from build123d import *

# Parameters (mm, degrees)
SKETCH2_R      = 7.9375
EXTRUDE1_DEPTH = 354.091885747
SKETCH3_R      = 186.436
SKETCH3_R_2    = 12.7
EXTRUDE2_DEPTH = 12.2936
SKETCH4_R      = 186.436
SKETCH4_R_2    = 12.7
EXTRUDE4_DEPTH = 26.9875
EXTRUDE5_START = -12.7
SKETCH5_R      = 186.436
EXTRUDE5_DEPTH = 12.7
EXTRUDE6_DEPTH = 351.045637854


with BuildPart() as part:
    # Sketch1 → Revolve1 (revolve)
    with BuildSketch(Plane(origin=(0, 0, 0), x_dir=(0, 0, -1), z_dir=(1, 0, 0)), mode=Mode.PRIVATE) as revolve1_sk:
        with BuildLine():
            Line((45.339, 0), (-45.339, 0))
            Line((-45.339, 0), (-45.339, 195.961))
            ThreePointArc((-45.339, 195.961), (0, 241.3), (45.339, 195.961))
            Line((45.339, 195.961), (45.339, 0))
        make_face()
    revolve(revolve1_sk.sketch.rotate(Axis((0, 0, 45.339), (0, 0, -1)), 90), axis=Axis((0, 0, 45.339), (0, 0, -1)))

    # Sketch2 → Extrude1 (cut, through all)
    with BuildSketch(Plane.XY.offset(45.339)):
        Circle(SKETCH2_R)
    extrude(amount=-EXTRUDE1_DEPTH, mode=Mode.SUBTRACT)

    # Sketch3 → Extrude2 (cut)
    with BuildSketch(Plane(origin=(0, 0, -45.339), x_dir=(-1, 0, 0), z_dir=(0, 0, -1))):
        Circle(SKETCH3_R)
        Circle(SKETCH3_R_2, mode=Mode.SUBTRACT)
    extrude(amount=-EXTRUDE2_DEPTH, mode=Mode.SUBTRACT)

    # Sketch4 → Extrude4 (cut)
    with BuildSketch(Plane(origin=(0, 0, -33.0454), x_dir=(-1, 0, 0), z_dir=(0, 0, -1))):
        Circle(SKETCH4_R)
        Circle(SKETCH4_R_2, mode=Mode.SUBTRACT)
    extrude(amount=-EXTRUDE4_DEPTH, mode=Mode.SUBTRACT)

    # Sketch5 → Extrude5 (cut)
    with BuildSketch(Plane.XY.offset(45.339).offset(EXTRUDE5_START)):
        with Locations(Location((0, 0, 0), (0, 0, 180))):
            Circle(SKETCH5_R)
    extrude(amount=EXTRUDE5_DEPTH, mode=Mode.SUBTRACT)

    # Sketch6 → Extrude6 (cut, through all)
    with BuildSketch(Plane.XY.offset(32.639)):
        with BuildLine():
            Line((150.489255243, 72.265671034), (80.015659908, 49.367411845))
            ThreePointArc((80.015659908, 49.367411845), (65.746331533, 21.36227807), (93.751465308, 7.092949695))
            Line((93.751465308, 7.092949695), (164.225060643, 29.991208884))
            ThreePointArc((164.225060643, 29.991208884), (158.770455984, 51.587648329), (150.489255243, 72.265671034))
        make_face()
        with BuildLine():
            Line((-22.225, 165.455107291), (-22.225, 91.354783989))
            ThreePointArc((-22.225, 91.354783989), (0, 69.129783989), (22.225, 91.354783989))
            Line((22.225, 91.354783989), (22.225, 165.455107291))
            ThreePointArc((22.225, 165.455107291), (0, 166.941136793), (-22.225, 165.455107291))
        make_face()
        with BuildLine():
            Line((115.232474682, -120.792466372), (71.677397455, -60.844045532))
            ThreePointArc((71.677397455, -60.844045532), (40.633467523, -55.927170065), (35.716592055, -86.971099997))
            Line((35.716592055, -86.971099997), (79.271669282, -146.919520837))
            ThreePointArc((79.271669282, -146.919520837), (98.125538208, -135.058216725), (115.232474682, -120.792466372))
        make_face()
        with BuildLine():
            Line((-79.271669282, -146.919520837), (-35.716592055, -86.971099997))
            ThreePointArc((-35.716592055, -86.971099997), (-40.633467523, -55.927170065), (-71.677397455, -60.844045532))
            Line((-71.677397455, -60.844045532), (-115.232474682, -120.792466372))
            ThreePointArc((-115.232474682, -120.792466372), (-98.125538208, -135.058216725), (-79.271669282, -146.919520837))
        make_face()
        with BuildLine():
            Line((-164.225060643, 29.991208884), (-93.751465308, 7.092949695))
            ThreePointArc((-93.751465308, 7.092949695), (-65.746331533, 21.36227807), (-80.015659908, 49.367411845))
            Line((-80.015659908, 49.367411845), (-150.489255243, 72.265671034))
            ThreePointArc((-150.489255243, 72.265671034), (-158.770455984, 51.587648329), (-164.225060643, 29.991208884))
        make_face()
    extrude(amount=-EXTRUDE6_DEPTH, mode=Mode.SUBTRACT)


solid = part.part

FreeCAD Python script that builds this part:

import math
import FreeCAD as App
import Part
import Sketcher

V = App.Vector
Q = App.Units.Quantity

doc = App.newDocument("Part")
body = doc.addObject("PartDesign::Body", "Body")

sketch1 = doc.addObject("Sketcher::SketchObject", "Sketch")
body.addObject(sketch1)
sketch1.AttachmentSupport = (doc.YZ_Plane, [""])
sketch1.MapMode = "FlatFace"
sketch1.addGeometry([
    Part.LineSegment(V(0, 45.339, 0), V(0, -45.339, 0)),
    Part.LineSegment(V(0, -45.339, 0), V(195.961, -45.339, 0)),
    Part.ArcOfCircle(Part.Circle(V(195.961, 0, 0), V(0, 0, 1), 45.339), math.radians(-90), math.radians(90)),
    Part.LineSegment(V(195.961, 45.339, 0), V(0, 45.339, 0)),
], False)
sketch1.addConstraint([
    Sketcher.Constraint("Coincident", 0, 2, 1, 1),
    Sketcher.Constraint("Tangent", 1, 2, 2, 1),
    Sketcher.Constraint("Tangent", 2, 2, 3, 1),
    Sketcher.Constraint("Coincident", 3, 2, 0, 1),
    Sketcher.Constraint("Vertical", 0),
    Sketcher.Constraint("Horizontal", 1),
    Sketcher.Constraint("Horizontal", 3),
    Sketcher.Constraint("Symmetric", 0, 2, 3, 2, -1, 1),
    Sketcher.Constraint("Radius", 2, Q("1.785 in")),
    Sketcher.Constraint("DistanceX", 1, 1, 1, 2, Q("7.715 in")),
])
revolution = doc.addObject("PartDesign::Revolution", "Revolution")
body.addObject(revolution)
revolution.Profile = sketch1
revolution.ReferenceAxis = (sketch1, ["V_Axis"])
revolution.Angle = 360

sketch2 = doc.addObject("Sketcher::SketchObject", "Sketch001")
body.addObject(sketch2)
sketch2.AttachmentSupport = (doc.XY_Plane, [""])
sketch2.MapMode = "FlatFace"
sketch2.AttachmentOffset = App.Placement(V(0, 0, 1.785 * 25.4), App.Rotation())
sketch2.addGeometry(Part.Circle(V(0, 0, 0), V(0, 0, 1), 7.9375), False)
sketch2.addConstraint([
    Sketcher.Constraint("Coincident", 0, 3, -1, 1),
    Sketcher.Constraint("Diameter", 0, Q("0.625 in")),
])
pocket1 = doc.addObject("PartDesign::Pocket", "Pocket")
body.addObject(pocket1)
pocket1.Profile = sketch2
pocket1.Type = "ThroughAll"

sketch3 = doc.addObject("Sketcher::SketchObject", "Sketch002")
body.addObject(sketch3)
sketch3.AttachmentSupport = (doc.XY_Plane, [""])
sketch3.MapMode = "FlatFace"
sketch3.AttachmentOffset = App.Placement(V(0, 0, -1.785 * 25.4), App.Rotation())
sketch3.addGeometry([
    Part.Circle(V(0, 0, 0), V(0, 0, 1), 186.436),
    Part.Circle(V(0, 0, 0), V(0, 0, 1), 12.7),
], False)
sketch3.addConstraint([
    Sketcher.Constraint("Coincident", 0, 3, -1, 1),
    Sketcher.Constraint("Coincident", 1, 3, -1, 1),
    Sketcher.Constraint("Diameter", 1, Q("1 in")),
    Sketcher.Constraint("Diameter", 0, Q("14.68 in")),
])
pocket2 = doc.addObject("PartDesign::Pocket", "Pocket001")
body.addObject(pocket2)
pocket2.Profile = sketch3
pocket2.Length = Q("0.484 in")
pocket2.Reversed = True

sketch4 = doc.addObject("Sketcher::SketchObject", "Sketch003")
body.addObject(sketch4)
sketch4.AttachmentSupport = (doc.XY_Plane, [""])
sketch4.MapMode = "FlatFace"
sketch4.AttachmentOffset = App.Placement(V(0, 0, -1.301 * 25.4), App.Rotation())
sketch4.addGeometry([
    Part.Circle(V(0, 0, 0), V(0, 0, 1), 186.436),
    Part.Circle(V(0, 0, 0), V(0, 0, 1), 12.7),
], False)
sketch4.addConstraint([
    Sketcher.Constraint("Coincident", 0, 3, -1, 1),
    Sketcher.Constraint("Coincident", 1, 3, -1, 1),
    Sketcher.Constraint("Diameter", 1, Q("1 in")),
    Sketcher.Constraint("Diameter", 0, Q("14.68 in")),
])
pocket3 = doc.addObject("PartDesign::Pocket", "Pocket002")
body.addObject(pocket3)
pocket3.Profile = sketch4
pocket3.Length = Q("1.0625 in")
pocket3.Reversed = True

sketch5 = doc.addObject("Sketcher::SketchObject", "Sketch004")
body.addObject(sketch5)
sketch5.AttachmentSupport = (doc.XY_Plane, [""])
sketch5.MapMode = "FlatFace"
sketch5.AttachmentOffset = App.Placement(V(0, 0, 1.285 * 25.4), App.Rotation())
sketch5.addGeometry(Part.Circle(V(0, 0, 0), V(0, 0, 1), 186.436), False)
sketch5.addConstraint([
    Sketcher.Constraint("Coincident", 0, 3, -1, 1),
    Sketcher.Constraint("Diameter", 0, Q("14.68 in")),
])
pocket4 = doc.addObject("PartDesign::Pocket", "Pocket003")
body.addObject(pocket4)
pocket4.Profile = sketch5
pocket4.Length = Q("0.5 in")
pocket4.Reversed = True

sketch6 = doc.addObject("Sketcher::SketchObject", "Sketch005")
body.addObject(sketch6)
sketch6.AttachmentSupport = (doc.XY_Plane, [""])
sketch6.MapMode = "FlatFace"
sketch6.AttachmentOffset = App.Placement(V(0, 0, 1.285 * 25.4), App.Rotation())
sketch6.addGeometry([
    Part.LineSegment(V(150.489255, 72.265671, 0), V(80.01566, 49.367412, 0)),
    Part.ArcOfCircle(Part.Circle(V(86.883563, 28.230181, 0), V(0, 0, 1), 22.225), math.radians(108), math.radians(288)),
    Part.LineSegment(V(93.751465, 7.09295, 0), V(164.225061, 29.991209, 0)),
    Part.ArcOfCircle(Part.Circle(V(0, 0, 0), V(0, 0, 1), 166.941137), math.radians(10.349455), math.radians(25.650545)),
    Part.LineSegment(V(-22.225, 165.455107, 0), V(-22.225, 91.354784, 0)),
    Part.ArcOfCircle(Part.Circle(V(0, 91.354784, 0), V(0, 0, 1), 22.225), math.radians(180), math.radians(360)),
    Part.LineSegment(V(22.225, 91.354784, 0), V(22.225, 165.455107, 0)),
    Part.ArcOfCircle(Part.Circle(V(0, 0, 0), V(0, 0, 1), 166.941137), math.radians(82.349455), math.radians(97.650545)),
    Part.LineSegment(V(115.232475, -120.792466, 0), V(71.677397, -60.844046, 0)),
    Part.ArcOfCircle(Part.Circle(V(53.696995, -73.907573, 0), V(0, 0, 1), 22.225), math.radians(36), math.radians(216)),
    Part.LineSegment(V(35.716592, -86.9711, 0), V(79.271669, -146.919521, 0)),
    Part.ArcOfCircle(Part.Circle(V(0, 0, 0), V(0, 0, 1), 166.941137), math.radians(-61.650545), math.radians(-46.349455)),
    Part.LineSegment(V(-79.271669, -146.919521, 0), V(-35.716592, -86.9711, 0)),
    Part.ArcOfCircle(Part.Circle(V(-53.696995, -73.907573, 0), V(0, 0, 1), 22.225), math.radians(-36), math.radians(144)),
    Part.LineSegment(V(-71.677397, -60.844046, 0), V(-115.232475, -120.792466, 0)),
    Part.ArcOfCircle(Part.Circle(V(0, 0, 0), V(0, 0, 1), 166.941137), math.radians(-133.650545), math.radians(-118.349455)),
    Part.LineSegment(V(-164.225061, 29.991209, 0), V(-93.751465, 7.09295, 0)),
    Part.ArcOfCircle(Part.Circle(V(-86.883563, 28.230181, 0), V(0, 0, 1), 22.225), math.radians(-108), math.radians(72)),
    Part.LineSegment(V(-80.01566, 49.367412, 0), V(-150.489255, 72.265671, 0)),
    Part.ArcOfCircle(Part.Circle(V(0, 0, 0), V(0, 0, 1), 166.941137), math.radians(154.349455), math.radians(169.650545)),
], False)
sketch6.addConstraint([
    Sketcher.Constraint("Tangent", 0, 2, 1, 1),
    Sketcher.Constraint("Tangent", 1, 2, 2, 1),
    Sketcher.Constraint("Coincident", 2, 2, 3, 1),
    Sketcher.Constraint("Coincident", 3, 2, 0, 1),
    Sketcher.Constraint("Tangent", 4, 2, 5, 1),
    Sketcher.Constraint("Tangent", 5, 2, 6, 1),
    Sketcher.Constraint("Coincident", 6, 2, 7, 1),
    Sketcher.Constraint("Coincident", 7, 2, 4, 1),
    Sketcher.Constraint("Tangent", 8, 2, 9, 1),
    Sketcher.Constraint("Tangent", 9, 2, 10, 1),
    Sketcher.Constraint("Coincident", 10, 2, 11, 1),
    Sketcher.Constraint("Coincident", 11, 2, 8, 1),
    Sketcher.Constraint("Tangent", 12, 2, 13, 1),
    Sketcher.Constraint("Tangent", 13, 2, 14, 1),
    Sketcher.Constraint("Coincident", 14, 2, 15, 1),
    Sketcher.Constraint("Coincident", 15, 2, 12, 1),
    Sketcher.Constraint("Tangent", 16, 2, 17, 1),
    Sketcher.Constraint("Tangent", 17, 2, 18, 1),
    Sketcher.Constraint("Coincident", 18, 2, 19, 1),
    Sketcher.Constraint("Coincident", 19, 2, 16, 1),
    Sketcher.Constraint("Vertical", 4),
    Sketcher.Constraint("Vertical", 6),
    Sketcher.Constraint("Coincident", 3, 3, -1, 1),
    Sketcher.Constraint("Coincident", 7, 3, -1, 1),
    Sketcher.Constraint("Coincident", 11, 3, -1, 1),
    Sketcher.Constraint("Coincident", 15, 3, -1, 1),
    Sketcher.Constraint("Coincident", 19, 3, -1, 1),
    Sketcher.Constraint("Equal", 1, 5),
    Sketcher.Constraint("Equal", 3, 7),
    Sketcher.Constraint("Equal", 5, 9),
    Sketcher.Constraint("Equal", 7, 11),
    Sketcher.Constraint("Equal", 9, 13),
    Sketcher.Constraint("Equal", 11, 15),
    Sketcher.Constraint("Equal", 13, 17),
    Sketcher.Constraint("Equal", 15, 19),
    Sketcher.Constraint("Symmetric", 9, 3, 13, 3, -2),
    Sketcher.Constraint("Symmetric", 1, 3, 17, 3, -2),
    Sketcher.Constraint("PointOnObject", 5, 3, -2),
    Sketcher.Constraint("Parallel", 0, 2),
    Sketcher.Constraint("Parallel", 8, 10),
    Sketcher.Constraint("Parallel", 12, 14),
    Sketcher.Constraint("Parallel", 16, 18),
    Sketcher.Constraint("Horizontal", 9, 2, 12, 2),
    Sketcher.Constraint("Horizontal", 1, 2, 16, 2),
    Sketcher.Constraint("Equal", 0, 2),
    Sketcher.Constraint("Equal", 2, 8),
    Sketcher.Constraint("Equal", 8, 10),
    Sketcher.Constraint("Angle", 0, Q("-162 deg")),
    Sketcher.Constraint("Angle", 8, Q("126 deg")),
    Sketcher.Constraint("Radius", 1, Q("0.875 in")),
    Sketcher.Constraint("Radius", 3, Q("166.941137 mm")),
    Sketcher.Constraint("DistanceY", 9, 2, -1, 1, Q("86.9711 mm")),
    Sketcher.Constraint("DistanceY", 4, 2, 4, 1, Q("74.100323 mm")),
])
pocket5 = doc.addObject("PartDesign::Pocket", "Pocket004")
body.addObject(pocket5)
pocket5.Profile = sketch6
pocket5.Type = "ThroughAll"

doc.recompute()
